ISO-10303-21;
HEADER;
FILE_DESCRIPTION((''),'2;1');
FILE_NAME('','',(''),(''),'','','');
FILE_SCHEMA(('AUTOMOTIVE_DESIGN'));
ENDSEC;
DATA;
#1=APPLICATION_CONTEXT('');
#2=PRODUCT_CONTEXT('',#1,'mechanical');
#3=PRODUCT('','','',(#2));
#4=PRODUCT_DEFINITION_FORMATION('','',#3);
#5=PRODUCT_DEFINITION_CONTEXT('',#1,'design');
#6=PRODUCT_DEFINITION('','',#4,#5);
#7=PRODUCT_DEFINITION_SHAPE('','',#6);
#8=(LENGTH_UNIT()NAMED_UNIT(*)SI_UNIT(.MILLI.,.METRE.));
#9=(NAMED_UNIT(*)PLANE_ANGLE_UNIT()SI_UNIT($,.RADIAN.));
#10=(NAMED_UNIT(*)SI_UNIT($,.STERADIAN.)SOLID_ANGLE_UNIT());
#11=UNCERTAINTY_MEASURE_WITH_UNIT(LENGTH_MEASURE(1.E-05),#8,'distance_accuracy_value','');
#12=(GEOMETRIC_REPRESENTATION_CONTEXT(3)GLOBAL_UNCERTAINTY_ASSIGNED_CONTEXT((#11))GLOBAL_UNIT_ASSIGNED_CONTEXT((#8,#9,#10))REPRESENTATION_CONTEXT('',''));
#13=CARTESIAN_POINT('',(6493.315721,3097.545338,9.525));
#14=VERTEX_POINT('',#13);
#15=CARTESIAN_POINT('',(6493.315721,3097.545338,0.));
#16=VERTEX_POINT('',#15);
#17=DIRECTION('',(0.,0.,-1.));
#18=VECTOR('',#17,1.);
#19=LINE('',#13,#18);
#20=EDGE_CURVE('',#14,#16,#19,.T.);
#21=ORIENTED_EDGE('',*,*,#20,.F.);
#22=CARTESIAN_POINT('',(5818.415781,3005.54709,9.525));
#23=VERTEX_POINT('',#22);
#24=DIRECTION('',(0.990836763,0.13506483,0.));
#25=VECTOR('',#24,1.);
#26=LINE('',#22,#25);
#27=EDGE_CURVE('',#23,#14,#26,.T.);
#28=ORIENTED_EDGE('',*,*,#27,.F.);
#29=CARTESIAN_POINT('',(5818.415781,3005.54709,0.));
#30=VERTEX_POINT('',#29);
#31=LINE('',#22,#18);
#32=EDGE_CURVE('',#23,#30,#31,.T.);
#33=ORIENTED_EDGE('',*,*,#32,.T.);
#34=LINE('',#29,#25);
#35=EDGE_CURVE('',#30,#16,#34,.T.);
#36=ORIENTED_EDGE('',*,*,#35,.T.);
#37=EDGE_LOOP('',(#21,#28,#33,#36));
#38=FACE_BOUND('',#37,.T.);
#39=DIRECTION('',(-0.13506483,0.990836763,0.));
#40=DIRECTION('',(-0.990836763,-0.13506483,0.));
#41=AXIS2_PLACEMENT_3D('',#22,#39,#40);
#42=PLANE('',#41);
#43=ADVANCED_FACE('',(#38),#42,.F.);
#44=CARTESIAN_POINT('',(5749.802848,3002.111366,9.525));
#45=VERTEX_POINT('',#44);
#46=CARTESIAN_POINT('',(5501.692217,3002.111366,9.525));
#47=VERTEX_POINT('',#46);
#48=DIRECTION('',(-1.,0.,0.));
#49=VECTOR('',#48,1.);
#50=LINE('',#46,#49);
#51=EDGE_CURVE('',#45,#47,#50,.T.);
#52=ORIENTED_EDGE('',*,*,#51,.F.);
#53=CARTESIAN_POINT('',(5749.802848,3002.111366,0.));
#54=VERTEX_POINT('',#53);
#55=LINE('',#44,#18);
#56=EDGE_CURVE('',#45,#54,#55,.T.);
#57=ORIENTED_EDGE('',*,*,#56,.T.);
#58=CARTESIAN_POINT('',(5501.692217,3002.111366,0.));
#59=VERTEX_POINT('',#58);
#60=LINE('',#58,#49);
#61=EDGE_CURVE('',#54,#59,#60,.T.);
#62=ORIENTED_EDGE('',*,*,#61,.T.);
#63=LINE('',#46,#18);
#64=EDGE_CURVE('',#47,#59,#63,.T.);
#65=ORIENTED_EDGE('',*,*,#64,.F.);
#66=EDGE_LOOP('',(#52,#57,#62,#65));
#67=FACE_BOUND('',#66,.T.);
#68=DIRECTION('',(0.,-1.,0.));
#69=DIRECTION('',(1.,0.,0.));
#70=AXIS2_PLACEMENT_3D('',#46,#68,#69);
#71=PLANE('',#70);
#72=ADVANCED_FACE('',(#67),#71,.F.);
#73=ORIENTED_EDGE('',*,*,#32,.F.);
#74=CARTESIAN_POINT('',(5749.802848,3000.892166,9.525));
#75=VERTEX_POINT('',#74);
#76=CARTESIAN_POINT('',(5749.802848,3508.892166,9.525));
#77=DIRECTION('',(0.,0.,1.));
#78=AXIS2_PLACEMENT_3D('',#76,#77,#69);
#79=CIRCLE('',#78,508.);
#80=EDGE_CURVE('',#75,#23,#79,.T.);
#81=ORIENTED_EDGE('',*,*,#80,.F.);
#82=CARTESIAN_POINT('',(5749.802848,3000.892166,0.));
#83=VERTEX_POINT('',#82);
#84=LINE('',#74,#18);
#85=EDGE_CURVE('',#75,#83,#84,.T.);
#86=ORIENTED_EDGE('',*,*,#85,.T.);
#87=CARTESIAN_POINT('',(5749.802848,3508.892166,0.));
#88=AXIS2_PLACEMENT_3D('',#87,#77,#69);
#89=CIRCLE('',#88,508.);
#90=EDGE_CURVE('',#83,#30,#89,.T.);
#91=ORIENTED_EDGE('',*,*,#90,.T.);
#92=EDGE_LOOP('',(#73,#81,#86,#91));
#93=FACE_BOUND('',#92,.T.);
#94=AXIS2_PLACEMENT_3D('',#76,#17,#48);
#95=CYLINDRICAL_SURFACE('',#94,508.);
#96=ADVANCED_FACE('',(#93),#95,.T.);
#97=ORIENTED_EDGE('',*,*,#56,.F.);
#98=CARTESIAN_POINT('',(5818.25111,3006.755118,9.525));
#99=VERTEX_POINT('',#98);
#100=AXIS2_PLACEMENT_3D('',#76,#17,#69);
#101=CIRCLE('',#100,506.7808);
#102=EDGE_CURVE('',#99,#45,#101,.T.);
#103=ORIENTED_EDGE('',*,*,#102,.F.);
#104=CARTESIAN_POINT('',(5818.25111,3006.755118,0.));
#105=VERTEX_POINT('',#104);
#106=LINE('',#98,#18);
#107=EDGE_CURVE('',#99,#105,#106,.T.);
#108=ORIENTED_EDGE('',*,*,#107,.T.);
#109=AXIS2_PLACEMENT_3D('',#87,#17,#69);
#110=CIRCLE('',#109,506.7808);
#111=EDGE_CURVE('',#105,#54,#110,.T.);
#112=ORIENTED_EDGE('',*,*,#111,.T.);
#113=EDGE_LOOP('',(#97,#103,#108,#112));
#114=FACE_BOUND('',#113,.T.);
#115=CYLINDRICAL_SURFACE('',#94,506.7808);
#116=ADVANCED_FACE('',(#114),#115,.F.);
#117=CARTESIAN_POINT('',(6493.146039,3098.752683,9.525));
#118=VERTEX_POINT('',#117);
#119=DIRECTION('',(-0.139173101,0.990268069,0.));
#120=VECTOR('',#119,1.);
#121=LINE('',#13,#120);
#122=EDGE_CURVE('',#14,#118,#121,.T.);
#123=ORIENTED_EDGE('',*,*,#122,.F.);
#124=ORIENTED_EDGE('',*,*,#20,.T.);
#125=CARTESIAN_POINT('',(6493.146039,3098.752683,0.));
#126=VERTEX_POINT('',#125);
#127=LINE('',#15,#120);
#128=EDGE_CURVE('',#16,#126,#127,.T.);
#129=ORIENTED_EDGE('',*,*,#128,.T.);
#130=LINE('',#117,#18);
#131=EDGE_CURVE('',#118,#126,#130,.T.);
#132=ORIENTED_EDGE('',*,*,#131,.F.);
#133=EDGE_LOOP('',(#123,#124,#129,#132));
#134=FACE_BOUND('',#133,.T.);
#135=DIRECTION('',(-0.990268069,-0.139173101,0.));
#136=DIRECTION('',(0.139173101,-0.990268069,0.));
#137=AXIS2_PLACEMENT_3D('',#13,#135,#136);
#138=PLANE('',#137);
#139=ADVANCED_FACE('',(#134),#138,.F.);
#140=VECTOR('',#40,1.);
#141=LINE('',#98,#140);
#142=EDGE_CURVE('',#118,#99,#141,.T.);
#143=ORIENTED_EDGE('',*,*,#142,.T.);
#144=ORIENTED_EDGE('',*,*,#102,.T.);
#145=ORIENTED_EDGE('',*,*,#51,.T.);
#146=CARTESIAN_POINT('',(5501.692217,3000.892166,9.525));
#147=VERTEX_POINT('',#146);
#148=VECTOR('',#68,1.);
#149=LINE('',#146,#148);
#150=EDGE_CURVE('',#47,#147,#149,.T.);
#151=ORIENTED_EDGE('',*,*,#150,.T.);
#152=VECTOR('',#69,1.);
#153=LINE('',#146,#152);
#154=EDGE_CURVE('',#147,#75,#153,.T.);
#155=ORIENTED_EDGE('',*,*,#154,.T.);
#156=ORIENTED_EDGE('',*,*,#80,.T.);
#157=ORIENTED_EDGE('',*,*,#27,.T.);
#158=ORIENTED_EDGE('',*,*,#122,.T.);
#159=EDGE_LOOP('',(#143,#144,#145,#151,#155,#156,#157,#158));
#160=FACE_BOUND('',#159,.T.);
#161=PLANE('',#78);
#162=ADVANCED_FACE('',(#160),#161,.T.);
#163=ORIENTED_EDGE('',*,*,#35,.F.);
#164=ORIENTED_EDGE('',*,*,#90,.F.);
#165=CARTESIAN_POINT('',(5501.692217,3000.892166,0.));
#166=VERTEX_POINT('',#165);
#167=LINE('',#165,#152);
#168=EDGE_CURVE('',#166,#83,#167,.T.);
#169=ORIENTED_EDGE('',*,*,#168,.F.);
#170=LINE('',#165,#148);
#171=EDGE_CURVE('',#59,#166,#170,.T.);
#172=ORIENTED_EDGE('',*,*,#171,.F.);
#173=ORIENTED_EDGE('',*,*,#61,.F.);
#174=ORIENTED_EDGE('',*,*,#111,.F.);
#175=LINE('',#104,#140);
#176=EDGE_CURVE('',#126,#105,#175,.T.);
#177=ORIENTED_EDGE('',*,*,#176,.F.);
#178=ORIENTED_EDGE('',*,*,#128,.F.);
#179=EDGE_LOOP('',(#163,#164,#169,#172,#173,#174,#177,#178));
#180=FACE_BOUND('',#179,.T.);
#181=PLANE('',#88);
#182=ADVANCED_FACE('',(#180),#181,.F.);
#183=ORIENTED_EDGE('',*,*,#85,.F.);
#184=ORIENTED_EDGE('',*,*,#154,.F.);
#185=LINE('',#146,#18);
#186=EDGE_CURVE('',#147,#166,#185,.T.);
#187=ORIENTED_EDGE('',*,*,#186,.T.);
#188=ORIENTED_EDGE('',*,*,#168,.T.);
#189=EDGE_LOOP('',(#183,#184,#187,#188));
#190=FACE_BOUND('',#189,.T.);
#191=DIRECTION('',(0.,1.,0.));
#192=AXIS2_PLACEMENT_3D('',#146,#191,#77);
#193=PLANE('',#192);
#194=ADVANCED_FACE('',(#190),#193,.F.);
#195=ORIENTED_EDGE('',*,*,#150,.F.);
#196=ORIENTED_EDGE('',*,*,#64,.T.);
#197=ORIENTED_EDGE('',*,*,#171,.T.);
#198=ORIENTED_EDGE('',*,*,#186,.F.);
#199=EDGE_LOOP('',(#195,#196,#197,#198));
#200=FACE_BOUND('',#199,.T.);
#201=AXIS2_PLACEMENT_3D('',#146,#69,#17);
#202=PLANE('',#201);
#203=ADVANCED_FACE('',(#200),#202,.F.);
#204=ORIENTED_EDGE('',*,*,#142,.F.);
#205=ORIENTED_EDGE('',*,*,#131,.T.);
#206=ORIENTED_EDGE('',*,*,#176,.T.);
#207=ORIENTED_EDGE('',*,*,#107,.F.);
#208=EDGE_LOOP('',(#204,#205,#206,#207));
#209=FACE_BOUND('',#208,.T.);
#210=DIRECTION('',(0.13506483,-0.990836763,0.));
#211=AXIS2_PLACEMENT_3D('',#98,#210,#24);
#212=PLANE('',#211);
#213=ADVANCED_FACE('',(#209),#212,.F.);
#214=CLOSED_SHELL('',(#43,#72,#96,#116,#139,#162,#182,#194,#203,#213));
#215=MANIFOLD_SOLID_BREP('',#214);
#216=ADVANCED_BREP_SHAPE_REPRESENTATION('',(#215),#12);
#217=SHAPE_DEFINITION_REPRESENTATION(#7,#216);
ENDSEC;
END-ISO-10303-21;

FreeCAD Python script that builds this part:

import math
import FreeCAD as App
import Part
import Sketcher

V = App.Vector
Q = App.Units.Quantity

doc = App.newDocument("Part")
params = doc.addObject("Spreadsheet::Sheet", "Params")
for row, (alias, value) in enumerate([
    ("sketch1_radius", "20 in"),
    ("sketch1_radius2", "19.952 in"),
    ("pad1_length", "0.375 in"),
], start=1):
    params.set(f"A{row}", alias)
    params.set(f"B{row}", "=" + value)
    params.setAlias(f"B{row}", alias)

body = doc.addObject("PartDesign::Body", "Body")

# Sketch on XY plane
sketch1 = doc.addObject("Sketcher::SketchObject", "Sketch")
body.addObject(sketch1)
sketch1.AttachmentSupport = (doc.XY_Plane, [""])
sketch1.MapMode = "FlatFace"
sketch1.addGeometry([
    Part.LineSegment(V(5501.7, 3002.1, 0), V(5501.7, 3000.9, 0)),  # 0
    Part.LineSegment(V(5501.7, 3000.9, 0), V(5749.8, 3000.9, 0)),  # 1
    Part.ArcOfCircle(Part.Circle(V(5749.8, 3508.9, 0), V(0, 0, 1), 508), math.radians(-90), math.radians(-82.24)),  # 2
    Part.LineSegment(V(5818.4, 3005.5, 0), V(6493.3, 3097.5, 0)),  # 3
    Part.LineSegment(V(6493.3, 3097.5, 0), V(6493.1, 3098.8, 0)),  # 4
    Part.LineSegment(V(6493.1, 3098.8, 0), V(5818.3, 3006.8, 0)),  # 5
    Part.ArcOfCircle(Part.Circle(V(5749.8, 3508.9, 0), V(0, 0, 1), 506.8), math.radians(-90), math.radians(-82.24)),  # 6
    Part.LineSegment(V(5749.8, 3002.1, 0), V(5501.7, 3002.1, 0)),  # 7
], False)
sketch1.addConstraint([
    Sketcher.Constraint("Coincident", 0, 2, 1, 1),
    Sketcher.Constraint("Tangent", 1, 2, 2, 1),
    Sketcher.Constraint("Tangent", 2, 2, 3, 1),
    Sketcher.Constraint("Coincident", 3, 2, 4, 1),
    Sketcher.Constraint("Coincident", 4, 2, 5, 1),
    Sketcher.Constraint("Tangent", 5, 2, 6, 2),
    Sketcher.Constraint("Tangent", 6, 1, 7, 1),
    Sketcher.Constraint("Coincident", 7, 2, 0, 1),
    Sketcher.Constraint("Vertical", 0),
    Sketcher.Constraint("Horizontal", 1),
    Sketcher.Constraint("Horizontal", 7),
    Sketcher.Constraint("Coincident", 6, 3, 2, 3),
    Sketcher.Constraint("Parallel", 3, 5),
    Sketcher.Constraint("Radius", 2, Q("20 in")),
    Sketcher.Constraint("Angle", 4, Q("98 deg")),
    Sketcher.Constraint("Radius", 6, Q("19.952 in")),
    Sketcher.Constraint("Distance", 3, 681.141399),
    Sketcher.Constraint("DistanceX", 1, 1, 1, 2, 248.110631),
    Sketcher.Constraint("DistanceY", -1, 1, 2, 2, 3005.54709),
    Sketcher.Constraint("DistanceX", -1, 1, 3, 2, 6493.315721),
    Sketcher.Constraint("DistanceX", -1, 1, 5, 2, 5818.25111),
])
sketch1.setExpression("Constraints[13]", "Params.sketch1_radius")
sketch1.setExpression("Constraints[15]", "Params.sketch1_radius2")
pad1 = doc.addObject("PartDesign::Pad", "Pad")
body.addObject(pad1)
pad1.Profile = sketch1
pad1.setExpression("Length", "Params.pad1_length")

doc.recompute()
